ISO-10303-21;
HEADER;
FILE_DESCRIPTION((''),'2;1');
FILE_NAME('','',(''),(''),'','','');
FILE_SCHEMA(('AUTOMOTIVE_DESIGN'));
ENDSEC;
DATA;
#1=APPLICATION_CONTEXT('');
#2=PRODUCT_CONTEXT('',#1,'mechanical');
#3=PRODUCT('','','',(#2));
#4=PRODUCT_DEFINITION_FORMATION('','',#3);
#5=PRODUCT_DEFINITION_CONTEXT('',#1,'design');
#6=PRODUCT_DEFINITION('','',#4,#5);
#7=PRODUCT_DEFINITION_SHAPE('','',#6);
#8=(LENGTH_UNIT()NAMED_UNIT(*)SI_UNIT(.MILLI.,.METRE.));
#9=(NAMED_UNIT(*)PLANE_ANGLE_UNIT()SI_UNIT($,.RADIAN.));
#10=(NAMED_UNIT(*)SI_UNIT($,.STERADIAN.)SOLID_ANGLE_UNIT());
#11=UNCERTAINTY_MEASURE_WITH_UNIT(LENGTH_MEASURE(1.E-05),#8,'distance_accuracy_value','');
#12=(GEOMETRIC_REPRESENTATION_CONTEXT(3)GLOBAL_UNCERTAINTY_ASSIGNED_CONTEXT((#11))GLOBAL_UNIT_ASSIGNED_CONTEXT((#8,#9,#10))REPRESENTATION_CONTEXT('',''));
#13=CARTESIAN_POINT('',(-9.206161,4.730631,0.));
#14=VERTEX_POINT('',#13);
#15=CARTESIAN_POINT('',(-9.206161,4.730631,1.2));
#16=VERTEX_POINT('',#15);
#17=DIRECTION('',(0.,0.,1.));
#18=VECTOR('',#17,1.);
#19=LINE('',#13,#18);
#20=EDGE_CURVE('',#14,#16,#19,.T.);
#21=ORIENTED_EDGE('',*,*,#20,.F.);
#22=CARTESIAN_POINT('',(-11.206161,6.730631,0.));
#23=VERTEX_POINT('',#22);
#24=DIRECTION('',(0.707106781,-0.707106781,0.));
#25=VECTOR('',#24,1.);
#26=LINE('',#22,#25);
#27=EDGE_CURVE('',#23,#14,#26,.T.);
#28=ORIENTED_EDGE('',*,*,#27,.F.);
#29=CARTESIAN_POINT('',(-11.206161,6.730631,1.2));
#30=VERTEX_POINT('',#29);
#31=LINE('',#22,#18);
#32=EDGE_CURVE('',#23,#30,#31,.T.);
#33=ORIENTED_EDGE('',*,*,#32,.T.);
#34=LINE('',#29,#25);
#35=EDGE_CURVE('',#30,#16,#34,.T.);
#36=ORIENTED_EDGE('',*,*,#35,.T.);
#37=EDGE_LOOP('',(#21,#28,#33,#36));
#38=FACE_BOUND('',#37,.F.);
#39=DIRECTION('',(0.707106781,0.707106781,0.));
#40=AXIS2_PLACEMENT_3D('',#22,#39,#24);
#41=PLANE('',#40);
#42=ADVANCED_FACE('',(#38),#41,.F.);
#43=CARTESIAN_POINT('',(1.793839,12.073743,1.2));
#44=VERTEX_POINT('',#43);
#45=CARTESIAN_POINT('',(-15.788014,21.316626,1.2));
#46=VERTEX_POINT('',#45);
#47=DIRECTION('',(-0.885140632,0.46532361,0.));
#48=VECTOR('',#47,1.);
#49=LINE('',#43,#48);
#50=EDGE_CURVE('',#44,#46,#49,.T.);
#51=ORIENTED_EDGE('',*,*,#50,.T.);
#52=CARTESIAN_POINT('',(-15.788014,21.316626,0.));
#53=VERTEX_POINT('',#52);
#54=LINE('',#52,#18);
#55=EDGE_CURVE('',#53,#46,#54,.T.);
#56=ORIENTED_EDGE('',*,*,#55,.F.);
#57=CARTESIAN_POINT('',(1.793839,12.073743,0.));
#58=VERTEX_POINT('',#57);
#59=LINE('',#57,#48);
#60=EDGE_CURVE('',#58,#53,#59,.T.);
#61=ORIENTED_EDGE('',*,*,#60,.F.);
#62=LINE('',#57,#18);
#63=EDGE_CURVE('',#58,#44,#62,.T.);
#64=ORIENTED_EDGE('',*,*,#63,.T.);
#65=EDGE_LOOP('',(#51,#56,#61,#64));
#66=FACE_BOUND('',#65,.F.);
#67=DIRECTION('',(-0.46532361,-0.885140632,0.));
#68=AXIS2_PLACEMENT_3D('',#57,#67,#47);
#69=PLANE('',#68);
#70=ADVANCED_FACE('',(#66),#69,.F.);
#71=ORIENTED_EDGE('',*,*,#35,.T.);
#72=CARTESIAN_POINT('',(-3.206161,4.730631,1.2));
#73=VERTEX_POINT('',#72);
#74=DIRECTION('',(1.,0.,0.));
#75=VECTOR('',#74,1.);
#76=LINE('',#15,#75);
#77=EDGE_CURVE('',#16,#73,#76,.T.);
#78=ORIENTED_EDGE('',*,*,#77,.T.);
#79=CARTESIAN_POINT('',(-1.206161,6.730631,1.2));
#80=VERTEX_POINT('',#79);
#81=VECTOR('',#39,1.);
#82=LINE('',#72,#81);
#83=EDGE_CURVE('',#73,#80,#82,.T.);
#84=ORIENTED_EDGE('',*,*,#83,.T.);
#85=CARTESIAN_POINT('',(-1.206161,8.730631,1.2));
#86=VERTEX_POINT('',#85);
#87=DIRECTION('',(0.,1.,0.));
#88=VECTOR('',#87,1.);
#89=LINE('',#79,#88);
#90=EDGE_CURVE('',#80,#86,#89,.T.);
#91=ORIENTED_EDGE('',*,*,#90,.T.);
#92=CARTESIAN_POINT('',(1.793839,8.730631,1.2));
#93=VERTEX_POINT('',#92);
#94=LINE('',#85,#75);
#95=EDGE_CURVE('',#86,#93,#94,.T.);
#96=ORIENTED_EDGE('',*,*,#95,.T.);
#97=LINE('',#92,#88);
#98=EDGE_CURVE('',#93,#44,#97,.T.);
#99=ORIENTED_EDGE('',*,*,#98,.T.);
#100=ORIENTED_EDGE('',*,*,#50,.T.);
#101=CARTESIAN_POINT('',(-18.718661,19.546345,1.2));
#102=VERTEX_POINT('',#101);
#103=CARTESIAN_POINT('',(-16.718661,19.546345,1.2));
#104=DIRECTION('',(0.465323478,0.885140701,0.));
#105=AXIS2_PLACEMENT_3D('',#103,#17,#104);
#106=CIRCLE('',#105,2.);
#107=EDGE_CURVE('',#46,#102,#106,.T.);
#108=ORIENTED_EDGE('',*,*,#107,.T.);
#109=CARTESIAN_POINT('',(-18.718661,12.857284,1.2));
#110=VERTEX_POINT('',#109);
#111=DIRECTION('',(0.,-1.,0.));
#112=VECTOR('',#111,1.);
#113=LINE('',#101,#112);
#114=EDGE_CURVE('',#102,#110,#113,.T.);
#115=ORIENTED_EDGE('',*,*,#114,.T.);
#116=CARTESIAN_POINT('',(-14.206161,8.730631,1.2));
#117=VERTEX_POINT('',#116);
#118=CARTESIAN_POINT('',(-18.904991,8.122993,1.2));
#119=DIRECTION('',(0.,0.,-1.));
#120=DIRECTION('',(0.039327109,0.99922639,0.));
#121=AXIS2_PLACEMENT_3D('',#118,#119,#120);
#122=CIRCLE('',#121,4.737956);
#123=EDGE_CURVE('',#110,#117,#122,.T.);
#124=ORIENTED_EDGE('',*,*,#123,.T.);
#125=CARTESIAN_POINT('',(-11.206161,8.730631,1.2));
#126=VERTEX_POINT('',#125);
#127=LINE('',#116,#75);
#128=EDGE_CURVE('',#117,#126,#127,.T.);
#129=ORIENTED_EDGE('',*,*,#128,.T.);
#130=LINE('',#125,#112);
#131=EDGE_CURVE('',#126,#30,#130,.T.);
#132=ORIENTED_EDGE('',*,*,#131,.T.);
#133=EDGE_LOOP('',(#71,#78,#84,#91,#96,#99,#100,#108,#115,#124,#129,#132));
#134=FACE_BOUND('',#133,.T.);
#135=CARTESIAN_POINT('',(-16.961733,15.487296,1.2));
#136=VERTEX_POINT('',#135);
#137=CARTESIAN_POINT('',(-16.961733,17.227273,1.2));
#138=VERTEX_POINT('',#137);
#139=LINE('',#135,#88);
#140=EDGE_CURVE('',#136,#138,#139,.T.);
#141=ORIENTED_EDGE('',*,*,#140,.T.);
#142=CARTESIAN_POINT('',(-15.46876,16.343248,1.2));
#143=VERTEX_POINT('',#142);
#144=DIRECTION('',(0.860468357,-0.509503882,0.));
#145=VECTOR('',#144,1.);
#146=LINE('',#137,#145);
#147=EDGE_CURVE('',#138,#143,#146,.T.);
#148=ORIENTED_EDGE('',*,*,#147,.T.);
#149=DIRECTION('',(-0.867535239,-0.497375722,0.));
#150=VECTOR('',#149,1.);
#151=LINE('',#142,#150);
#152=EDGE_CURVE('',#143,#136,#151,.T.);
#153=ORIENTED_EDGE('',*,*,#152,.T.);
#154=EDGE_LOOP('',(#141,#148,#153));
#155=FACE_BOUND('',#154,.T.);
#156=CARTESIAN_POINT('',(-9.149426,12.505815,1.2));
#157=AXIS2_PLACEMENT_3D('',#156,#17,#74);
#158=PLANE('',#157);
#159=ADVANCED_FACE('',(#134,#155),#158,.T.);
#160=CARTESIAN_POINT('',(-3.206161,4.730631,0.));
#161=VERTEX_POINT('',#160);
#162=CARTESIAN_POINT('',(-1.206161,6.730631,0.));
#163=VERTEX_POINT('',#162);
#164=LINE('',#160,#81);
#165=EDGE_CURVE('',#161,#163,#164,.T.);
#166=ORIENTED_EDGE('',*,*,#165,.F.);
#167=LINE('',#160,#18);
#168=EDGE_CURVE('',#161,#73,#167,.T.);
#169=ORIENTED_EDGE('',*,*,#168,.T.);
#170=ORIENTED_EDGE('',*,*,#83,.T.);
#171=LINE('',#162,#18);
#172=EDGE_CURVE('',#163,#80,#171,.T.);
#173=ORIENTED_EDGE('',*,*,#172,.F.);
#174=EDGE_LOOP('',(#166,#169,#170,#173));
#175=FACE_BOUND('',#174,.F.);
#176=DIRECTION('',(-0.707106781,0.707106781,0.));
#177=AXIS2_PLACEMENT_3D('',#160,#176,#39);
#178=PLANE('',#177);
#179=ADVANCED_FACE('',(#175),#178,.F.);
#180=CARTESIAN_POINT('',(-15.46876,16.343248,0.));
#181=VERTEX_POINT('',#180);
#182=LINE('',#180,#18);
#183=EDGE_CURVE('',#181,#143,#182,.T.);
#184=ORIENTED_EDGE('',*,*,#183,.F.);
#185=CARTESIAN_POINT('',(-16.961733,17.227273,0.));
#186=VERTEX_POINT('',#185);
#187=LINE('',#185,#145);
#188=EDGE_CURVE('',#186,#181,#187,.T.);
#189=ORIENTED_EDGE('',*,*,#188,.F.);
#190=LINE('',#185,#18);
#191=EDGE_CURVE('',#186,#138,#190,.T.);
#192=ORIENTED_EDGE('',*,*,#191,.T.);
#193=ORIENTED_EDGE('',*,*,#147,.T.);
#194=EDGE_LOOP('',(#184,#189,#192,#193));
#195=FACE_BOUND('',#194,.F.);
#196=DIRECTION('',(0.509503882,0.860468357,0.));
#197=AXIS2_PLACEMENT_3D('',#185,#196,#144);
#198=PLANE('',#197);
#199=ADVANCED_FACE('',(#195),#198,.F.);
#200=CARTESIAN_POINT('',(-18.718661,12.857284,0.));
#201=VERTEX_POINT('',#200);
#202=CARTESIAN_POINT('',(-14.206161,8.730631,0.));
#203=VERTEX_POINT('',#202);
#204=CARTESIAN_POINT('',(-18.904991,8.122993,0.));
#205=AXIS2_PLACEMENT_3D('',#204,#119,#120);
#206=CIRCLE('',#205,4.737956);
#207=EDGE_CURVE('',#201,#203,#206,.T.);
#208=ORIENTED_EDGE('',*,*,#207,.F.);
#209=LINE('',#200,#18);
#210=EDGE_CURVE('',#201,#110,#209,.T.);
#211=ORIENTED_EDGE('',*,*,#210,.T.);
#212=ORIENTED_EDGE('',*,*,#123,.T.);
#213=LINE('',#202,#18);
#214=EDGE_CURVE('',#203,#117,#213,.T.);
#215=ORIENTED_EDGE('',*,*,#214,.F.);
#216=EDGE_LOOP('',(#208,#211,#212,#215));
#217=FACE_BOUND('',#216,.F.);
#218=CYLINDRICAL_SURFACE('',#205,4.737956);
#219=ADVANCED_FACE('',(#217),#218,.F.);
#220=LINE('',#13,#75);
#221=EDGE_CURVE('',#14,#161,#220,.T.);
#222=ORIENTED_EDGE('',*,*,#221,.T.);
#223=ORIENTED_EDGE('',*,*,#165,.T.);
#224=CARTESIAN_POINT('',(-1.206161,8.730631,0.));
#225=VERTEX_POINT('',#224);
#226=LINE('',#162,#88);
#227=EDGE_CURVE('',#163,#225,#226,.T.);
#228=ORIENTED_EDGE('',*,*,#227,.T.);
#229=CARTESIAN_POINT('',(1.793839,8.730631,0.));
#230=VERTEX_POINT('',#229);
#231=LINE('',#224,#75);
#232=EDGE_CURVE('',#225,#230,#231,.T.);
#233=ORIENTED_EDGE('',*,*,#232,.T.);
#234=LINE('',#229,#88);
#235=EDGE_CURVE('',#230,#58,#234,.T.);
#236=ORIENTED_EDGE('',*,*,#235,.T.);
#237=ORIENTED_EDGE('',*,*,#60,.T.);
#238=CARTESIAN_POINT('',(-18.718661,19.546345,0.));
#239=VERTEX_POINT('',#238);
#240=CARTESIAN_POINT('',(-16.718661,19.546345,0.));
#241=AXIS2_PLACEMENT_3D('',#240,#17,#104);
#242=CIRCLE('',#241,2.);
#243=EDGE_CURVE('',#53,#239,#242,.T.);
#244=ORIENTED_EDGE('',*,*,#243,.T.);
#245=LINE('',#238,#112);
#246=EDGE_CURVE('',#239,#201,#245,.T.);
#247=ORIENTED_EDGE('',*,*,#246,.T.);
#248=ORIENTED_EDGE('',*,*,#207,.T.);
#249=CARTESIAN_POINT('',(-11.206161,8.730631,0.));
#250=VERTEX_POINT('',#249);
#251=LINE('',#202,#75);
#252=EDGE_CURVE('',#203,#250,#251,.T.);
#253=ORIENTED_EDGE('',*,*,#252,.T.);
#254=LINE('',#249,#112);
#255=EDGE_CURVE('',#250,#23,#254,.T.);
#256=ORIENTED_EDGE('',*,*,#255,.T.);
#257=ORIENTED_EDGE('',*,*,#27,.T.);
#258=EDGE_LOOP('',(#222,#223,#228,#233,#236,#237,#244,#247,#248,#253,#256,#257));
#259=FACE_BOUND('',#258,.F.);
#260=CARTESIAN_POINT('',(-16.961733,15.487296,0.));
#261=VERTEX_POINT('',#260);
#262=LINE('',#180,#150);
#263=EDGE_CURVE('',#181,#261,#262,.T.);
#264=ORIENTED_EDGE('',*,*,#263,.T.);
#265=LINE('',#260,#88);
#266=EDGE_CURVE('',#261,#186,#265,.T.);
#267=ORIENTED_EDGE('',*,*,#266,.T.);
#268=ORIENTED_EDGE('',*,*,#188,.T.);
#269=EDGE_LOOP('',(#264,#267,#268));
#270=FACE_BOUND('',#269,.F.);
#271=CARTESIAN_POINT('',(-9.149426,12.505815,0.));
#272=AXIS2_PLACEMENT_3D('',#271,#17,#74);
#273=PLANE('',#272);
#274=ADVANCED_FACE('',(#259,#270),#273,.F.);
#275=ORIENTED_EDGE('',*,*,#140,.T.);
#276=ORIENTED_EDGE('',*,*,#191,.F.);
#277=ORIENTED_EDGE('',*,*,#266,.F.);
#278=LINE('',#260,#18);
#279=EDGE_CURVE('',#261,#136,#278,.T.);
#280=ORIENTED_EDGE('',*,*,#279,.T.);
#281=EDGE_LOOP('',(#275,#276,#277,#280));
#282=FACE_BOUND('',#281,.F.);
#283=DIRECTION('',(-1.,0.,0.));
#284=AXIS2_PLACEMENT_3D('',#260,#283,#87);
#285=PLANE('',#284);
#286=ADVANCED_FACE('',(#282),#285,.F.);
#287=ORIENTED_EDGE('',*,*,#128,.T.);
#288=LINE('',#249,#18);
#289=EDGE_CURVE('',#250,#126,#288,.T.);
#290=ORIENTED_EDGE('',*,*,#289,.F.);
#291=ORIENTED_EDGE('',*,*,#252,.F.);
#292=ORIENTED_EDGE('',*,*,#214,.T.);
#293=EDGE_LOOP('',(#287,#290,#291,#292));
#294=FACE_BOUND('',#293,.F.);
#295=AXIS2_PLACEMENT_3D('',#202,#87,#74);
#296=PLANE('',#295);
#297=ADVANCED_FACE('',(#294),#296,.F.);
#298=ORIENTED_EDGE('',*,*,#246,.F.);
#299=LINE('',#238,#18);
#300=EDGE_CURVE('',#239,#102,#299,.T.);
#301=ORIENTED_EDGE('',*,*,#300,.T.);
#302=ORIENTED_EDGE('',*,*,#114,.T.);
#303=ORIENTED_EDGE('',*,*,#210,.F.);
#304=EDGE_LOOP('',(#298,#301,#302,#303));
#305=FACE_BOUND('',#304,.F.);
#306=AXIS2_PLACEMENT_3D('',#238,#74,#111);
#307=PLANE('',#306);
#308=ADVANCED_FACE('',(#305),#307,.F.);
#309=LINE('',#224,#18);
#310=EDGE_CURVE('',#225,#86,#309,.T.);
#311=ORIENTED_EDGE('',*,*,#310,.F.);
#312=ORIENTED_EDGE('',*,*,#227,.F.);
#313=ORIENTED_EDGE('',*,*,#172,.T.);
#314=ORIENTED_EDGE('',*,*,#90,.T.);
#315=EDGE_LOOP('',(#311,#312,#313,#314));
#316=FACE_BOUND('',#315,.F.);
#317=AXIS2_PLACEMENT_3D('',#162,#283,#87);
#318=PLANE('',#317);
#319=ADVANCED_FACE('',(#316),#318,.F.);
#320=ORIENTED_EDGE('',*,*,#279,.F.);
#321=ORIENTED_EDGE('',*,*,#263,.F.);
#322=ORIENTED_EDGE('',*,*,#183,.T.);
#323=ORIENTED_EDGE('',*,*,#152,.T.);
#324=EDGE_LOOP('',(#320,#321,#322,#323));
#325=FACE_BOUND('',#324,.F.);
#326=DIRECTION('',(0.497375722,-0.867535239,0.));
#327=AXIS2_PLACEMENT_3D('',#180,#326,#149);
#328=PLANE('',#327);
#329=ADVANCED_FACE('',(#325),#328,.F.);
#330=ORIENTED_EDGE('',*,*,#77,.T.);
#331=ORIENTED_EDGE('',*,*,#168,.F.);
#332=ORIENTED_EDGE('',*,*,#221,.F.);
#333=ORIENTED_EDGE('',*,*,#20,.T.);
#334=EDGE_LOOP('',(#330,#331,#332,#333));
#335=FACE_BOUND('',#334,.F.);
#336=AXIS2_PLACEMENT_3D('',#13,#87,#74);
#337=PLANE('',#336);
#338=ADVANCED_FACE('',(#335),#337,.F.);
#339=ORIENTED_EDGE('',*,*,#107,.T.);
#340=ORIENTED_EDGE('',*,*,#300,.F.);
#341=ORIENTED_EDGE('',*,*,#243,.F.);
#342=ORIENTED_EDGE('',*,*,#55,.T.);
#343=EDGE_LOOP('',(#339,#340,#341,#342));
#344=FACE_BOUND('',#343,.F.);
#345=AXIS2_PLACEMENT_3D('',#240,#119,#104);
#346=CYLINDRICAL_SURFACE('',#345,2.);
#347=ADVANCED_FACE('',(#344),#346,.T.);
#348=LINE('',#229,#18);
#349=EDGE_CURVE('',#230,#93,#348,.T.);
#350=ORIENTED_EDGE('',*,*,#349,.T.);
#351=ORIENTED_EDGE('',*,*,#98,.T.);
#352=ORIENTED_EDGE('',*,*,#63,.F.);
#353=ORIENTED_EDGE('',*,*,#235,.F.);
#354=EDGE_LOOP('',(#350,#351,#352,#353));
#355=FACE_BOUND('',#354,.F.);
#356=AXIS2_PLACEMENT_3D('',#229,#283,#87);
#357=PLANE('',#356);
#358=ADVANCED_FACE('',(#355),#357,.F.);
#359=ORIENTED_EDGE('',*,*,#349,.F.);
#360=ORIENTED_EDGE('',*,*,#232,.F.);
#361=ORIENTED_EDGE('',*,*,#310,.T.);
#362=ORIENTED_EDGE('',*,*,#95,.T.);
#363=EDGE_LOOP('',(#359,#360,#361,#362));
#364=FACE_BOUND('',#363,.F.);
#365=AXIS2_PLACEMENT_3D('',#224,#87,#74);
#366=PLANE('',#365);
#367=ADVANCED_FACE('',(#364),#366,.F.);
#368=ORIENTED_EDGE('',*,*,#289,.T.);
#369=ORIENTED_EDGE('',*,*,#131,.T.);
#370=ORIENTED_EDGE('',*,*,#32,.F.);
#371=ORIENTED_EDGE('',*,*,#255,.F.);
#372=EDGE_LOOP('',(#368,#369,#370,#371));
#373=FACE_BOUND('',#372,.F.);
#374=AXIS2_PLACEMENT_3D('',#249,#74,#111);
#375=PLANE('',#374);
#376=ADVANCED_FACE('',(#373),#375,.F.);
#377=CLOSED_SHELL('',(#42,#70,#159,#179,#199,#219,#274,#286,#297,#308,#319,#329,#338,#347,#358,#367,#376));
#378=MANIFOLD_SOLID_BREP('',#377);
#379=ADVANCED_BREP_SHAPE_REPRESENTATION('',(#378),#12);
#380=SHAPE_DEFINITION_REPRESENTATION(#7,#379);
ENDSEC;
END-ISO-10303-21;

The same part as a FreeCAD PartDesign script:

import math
import FreeCAD as App
import Part
import Sketcher

doc = App.newDocument("Part")
body = doc.addObject("PartDesign::Body", "Body")

# Sketch on XY plane
sketch1 = body.newObject("Sketcher::SketchObject", "Sketch")
sketch1.AttachmentSupport = (doc.getObject("XY_Plane"), [""])
sketch1.MapMode = "FlatFace"
sketch1.addGeometry([
    Part.ArcOfCircle(Part.Circle(App.Vector(-18.9, 8.1, 0), App.Vector(0, 0, 1), 4.7), math.radians(7), math.radians(88)),  # 0
    Part.LineSegment(App.Vector(-14.2, 8.7, 0), App.Vector(-11.2, 8.7, 0)),  # 1
    Part.LineSegment(App.Vector(-11.2, 8.7, 0), App.Vector(-11.2, 6.7, 0)),  # 2
    Part.LineSegment(App.Vector(-11.2, 6.7, 0), App.Vector(-9.2, 4.7, 0)),  # 3
    Part.LineSegment(App.Vector(-9.2, 4.7, 0), App.Vector(-3.2, 4.7, 0)),  # 4
    Part.LineSegment(App.Vector(-3.2, 4.7, 0), App.Vector(-1.2, 6.7, 0)),  # 5
    Part.LineSegment(App.Vector(-1.2, 6.7, 0), App.Vector(-1.2, 8.7, 0)),  # 6
    Part.LineSegment(App.Vector(-1.2, 8.7, 0), App.Vector(1.8, 8.7, 0)),  # 7
    Part.LineSegment(App.Vector(1.8, 8.7, 0), App.Vector(1.8, 12.1, 0)),  # 8
    Part.LineSegment(App.Vector(1.8, 12.1, 0), App.Vector(-15.8, 21.3, 0)),  # 9
    Part.ArcOfCircle(Part.Circle(App.Vector(-16.7, 19.5, 0), App.Vector(0, 0, 1), 2), math.radians(62), math.radians(180)),  # 10
    Part.LineSegment(App.Vector(-18.7, 19.5, 0), App.Vector(-18.7, 12.9, 0)),  # 11
    Part.LineSegment(App.Vector(-15.5, 16.3, 0), App.Vector(-17, 15.5, 0)),  # 12
    Part.LineSegment(App.Vector(-17, 15.5, 0), App.Vector(-17, 17.2, 0)),  # 13
    Part.LineSegment(App.Vector(-17, 17.2, 0), App.Vector(-15.5, 16.3, 0)),  # 14
], False)
sketch1.addConstraint([
    Sketcher.Constraint("Coincident", 0, 1, 1, 1),
    Sketcher.Constraint("Coincident", 1, 2, 2, 1),
    Sketcher.Constraint("Coincident", 2, 2, 3, 1),
    Sketcher.Constraint("Coincident", 3, 2, 4, 1),
    Sketcher.Constraint("Coincident", 4, 2, 5, 1),
    Sketcher.Constraint("Coincident", 5, 2, 6, 1),
    Sketcher.Constraint("Coincident", 6, 2, 7, 1),
    Sketcher.Constraint("Coincident", 7, 2, 8, 1),
    Sketcher.Constraint("Coincident", 8, 2, 9, 1),
    Sketcher.Constraint("Tangent", 9, 2, 10, 1),
    Sketcher.Constraint("Tangent", 10, 2, 11, 1),
    Sketcher.Constraint("Coincident", 11, 2, 0, 2),
    Sketcher.Constraint("Coincident", 12, 2, 13, 1),
    Sketcher.Constraint("Coincident", 13, 2, 14, 1),
    Sketcher.Constraint("Coincident", 14, 2, 12, 1),
    Sketcher.Constraint("Horizontal", 1),
    Sketcher.Constraint("Vertical", 2),
    Sketcher.Constraint("Horizontal", 4),
    Sketcher.Constraint("Vertical", 6),
    Sketcher.Constraint("Horizontal", 7),
    Sketcher.Constraint("Vertical", 8),
    Sketcher.Constraint("Vertical", 11),
    Sketcher.Constraint("Vertical", 13),
    Sketcher.Constraint("Perpendicular", 3, 5),
    Sketcher.Constraint("Horizontal", 2, 2, 5, 2),
    Sketcher.Constraint("Horizontal", 1, 2, 6, 2),
    Sketcher.Constraint("Equal", 1, 7),
    Sketcher.Constraint("Equal", 3, 5),
    Sketcher.Constraint("Radius", 10, 2.0),
    Sketcher.Constraint("DistanceX", 1, 1, 1, 2, 3.0),
    Sketcher.Constraint("DistanceX", 4, 1, 4, 2, 6.0),
    Sketcher.Constraint("DistanceY", 2, 2, 2, 1, 2.0),
    Sketcher.Constraint("DistanceX", 2, 2, 3, 2, 2.0),
    Sketcher.Constraint("Radius", 0, 4.737956),
    Sketcher.Constraint("DistanceY", 8, 1, 8, 2, 3.343112),
    Sketcher.Constraint("DistanceY", 11, 2, 11, 1, 6.689061),
    Sketcher.Constraint("DistanceX", 10, 3, 0, 1, 2.5125),
    Sketcher.Constraint("DistanceX", 10, 3, 14, 2, 1.249901),
    Sketcher.Constraint("Distance", 14, 1.73507),
    Sketcher.Constraint("DistanceY", 13, 1, 13, 2, 1.739977),
    Sketcher.Constraint("DistanceX", 0, 3, -1, 1, 18.904991),
    Sketcher.Constraint("DistanceX", 10, 3, -1, 1, 16.718661),
    Sketcher.Constraint("DistanceY", -1, 1, 0, 1, 8.730631),
    Sketcher.Constraint("DistanceX", 11, 2, 12, 2, 1.756928),
    Sketcher.Constraint("DistanceY", 12, 2, 10, 3, 4.059049),
])
pad1 = body.newObject("PartDesign::Pad", "Pad")
pad1.Profile = sketch1
pad1.Length = 1.2

doc.recompute()
